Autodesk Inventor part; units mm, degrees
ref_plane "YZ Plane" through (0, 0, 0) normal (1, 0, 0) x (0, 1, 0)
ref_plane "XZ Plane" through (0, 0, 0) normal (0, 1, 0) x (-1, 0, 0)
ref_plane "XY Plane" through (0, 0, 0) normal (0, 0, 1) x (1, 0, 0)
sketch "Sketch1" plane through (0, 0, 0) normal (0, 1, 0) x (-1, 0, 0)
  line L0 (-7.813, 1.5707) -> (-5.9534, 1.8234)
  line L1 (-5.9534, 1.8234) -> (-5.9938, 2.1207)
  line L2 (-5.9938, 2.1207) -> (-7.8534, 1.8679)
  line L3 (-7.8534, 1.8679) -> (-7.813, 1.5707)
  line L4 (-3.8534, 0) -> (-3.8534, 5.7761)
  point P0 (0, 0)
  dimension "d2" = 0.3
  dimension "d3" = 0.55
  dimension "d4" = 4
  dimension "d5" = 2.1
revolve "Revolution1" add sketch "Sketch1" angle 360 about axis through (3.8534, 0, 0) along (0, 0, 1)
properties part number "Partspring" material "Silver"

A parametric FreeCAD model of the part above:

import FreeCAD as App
import Part
import Sketcher
Q = App.Units.Quantity

doc = App.newDocument("Part")
body = doc.addObject("PartDesign::Body", "Body")

sketch1 = body.newObject("Sketcher::SketchObject", "Sketch")
sketch1.AttachmentSupport = (doc.getObject("XZ_Plane"), [""])
sketch1.MapMode = "FlatFace"
sketch1.addGeometry([
    Part.LineSegment(App.Vector(7.8534, 1.8679, 0), App.Vector(7.813, 1.5707, 0)),
    Part.LineSegment(App.Vector(7.813, 1.5707, 0), App.Vector(5.9534, 1.8234, 0)),
    Part.LineSegment(App.Vector(5.9534, 1.8234, 0), App.Vector(5.9938, 2.1207, 0)),
    Part.LineSegment(App.Vector(5.9938, 2.1207, 0), App.Vector(7.8534, 1.8679, 0)),
], False)
sketch1.addGeometry(Part.LineSegment(App.Vector(3.8534, 1.5707, 0), App.Vector(3.8534, 2.1207, 0)), True)
sketch1.addConstraint([
    Sketcher.Constraint("Coincident", 0, 2, 1, 1),
    Sketcher.Constraint("Coincident", 1, 2, 2, 1),
    Sketcher.Constraint("Coincident", 2, 2, 3, 1),
    Sketcher.Constraint("Coincident", 3, 2, 0, 1),
    Sketcher.Constraint("Vertical", 4),
    Sketcher.Constraint("Perpendicular", 0, 1),
    Sketcher.Constraint("Perpendicular", 1, 2),
    Sketcher.Constraint("Perpendicular", 2, 3),
    Sketcher.Constraint("Horizontal", 0, 2, 4, 1),
    Sketcher.Constraint("Horizontal", 2, 2, 4, 2),
    Sketcher.Constraint("DistanceX", 4, 1, 3, 2, Q("4 mm")),
    Sketcher.Constraint("Distance", 0, Q("0.3 mm")),
    Sketcher.Constraint("DistanceY", 4, 1, 4, 2, Q("0.55 mm")),
    Sketcher.Constraint("DistanceX", 4, 1, 1, 2, Q("2.1 mm")),
    Sketcher.Constraint("DistanceX", -1, 1, 0, 2, Q("7.813 mm")),
    Sketcher.Constraint("DistanceY", -1, 1, 3, 2, Q("1.868 mm")),
])
revolution = body.newObject("PartDesign::Revolution", "Revolution")
revolution.Profile = sketch1
revolution.ReferenceAxis = (sketch1, ["Axis0"])
revolution.Angle = 360

doc.recompute()
